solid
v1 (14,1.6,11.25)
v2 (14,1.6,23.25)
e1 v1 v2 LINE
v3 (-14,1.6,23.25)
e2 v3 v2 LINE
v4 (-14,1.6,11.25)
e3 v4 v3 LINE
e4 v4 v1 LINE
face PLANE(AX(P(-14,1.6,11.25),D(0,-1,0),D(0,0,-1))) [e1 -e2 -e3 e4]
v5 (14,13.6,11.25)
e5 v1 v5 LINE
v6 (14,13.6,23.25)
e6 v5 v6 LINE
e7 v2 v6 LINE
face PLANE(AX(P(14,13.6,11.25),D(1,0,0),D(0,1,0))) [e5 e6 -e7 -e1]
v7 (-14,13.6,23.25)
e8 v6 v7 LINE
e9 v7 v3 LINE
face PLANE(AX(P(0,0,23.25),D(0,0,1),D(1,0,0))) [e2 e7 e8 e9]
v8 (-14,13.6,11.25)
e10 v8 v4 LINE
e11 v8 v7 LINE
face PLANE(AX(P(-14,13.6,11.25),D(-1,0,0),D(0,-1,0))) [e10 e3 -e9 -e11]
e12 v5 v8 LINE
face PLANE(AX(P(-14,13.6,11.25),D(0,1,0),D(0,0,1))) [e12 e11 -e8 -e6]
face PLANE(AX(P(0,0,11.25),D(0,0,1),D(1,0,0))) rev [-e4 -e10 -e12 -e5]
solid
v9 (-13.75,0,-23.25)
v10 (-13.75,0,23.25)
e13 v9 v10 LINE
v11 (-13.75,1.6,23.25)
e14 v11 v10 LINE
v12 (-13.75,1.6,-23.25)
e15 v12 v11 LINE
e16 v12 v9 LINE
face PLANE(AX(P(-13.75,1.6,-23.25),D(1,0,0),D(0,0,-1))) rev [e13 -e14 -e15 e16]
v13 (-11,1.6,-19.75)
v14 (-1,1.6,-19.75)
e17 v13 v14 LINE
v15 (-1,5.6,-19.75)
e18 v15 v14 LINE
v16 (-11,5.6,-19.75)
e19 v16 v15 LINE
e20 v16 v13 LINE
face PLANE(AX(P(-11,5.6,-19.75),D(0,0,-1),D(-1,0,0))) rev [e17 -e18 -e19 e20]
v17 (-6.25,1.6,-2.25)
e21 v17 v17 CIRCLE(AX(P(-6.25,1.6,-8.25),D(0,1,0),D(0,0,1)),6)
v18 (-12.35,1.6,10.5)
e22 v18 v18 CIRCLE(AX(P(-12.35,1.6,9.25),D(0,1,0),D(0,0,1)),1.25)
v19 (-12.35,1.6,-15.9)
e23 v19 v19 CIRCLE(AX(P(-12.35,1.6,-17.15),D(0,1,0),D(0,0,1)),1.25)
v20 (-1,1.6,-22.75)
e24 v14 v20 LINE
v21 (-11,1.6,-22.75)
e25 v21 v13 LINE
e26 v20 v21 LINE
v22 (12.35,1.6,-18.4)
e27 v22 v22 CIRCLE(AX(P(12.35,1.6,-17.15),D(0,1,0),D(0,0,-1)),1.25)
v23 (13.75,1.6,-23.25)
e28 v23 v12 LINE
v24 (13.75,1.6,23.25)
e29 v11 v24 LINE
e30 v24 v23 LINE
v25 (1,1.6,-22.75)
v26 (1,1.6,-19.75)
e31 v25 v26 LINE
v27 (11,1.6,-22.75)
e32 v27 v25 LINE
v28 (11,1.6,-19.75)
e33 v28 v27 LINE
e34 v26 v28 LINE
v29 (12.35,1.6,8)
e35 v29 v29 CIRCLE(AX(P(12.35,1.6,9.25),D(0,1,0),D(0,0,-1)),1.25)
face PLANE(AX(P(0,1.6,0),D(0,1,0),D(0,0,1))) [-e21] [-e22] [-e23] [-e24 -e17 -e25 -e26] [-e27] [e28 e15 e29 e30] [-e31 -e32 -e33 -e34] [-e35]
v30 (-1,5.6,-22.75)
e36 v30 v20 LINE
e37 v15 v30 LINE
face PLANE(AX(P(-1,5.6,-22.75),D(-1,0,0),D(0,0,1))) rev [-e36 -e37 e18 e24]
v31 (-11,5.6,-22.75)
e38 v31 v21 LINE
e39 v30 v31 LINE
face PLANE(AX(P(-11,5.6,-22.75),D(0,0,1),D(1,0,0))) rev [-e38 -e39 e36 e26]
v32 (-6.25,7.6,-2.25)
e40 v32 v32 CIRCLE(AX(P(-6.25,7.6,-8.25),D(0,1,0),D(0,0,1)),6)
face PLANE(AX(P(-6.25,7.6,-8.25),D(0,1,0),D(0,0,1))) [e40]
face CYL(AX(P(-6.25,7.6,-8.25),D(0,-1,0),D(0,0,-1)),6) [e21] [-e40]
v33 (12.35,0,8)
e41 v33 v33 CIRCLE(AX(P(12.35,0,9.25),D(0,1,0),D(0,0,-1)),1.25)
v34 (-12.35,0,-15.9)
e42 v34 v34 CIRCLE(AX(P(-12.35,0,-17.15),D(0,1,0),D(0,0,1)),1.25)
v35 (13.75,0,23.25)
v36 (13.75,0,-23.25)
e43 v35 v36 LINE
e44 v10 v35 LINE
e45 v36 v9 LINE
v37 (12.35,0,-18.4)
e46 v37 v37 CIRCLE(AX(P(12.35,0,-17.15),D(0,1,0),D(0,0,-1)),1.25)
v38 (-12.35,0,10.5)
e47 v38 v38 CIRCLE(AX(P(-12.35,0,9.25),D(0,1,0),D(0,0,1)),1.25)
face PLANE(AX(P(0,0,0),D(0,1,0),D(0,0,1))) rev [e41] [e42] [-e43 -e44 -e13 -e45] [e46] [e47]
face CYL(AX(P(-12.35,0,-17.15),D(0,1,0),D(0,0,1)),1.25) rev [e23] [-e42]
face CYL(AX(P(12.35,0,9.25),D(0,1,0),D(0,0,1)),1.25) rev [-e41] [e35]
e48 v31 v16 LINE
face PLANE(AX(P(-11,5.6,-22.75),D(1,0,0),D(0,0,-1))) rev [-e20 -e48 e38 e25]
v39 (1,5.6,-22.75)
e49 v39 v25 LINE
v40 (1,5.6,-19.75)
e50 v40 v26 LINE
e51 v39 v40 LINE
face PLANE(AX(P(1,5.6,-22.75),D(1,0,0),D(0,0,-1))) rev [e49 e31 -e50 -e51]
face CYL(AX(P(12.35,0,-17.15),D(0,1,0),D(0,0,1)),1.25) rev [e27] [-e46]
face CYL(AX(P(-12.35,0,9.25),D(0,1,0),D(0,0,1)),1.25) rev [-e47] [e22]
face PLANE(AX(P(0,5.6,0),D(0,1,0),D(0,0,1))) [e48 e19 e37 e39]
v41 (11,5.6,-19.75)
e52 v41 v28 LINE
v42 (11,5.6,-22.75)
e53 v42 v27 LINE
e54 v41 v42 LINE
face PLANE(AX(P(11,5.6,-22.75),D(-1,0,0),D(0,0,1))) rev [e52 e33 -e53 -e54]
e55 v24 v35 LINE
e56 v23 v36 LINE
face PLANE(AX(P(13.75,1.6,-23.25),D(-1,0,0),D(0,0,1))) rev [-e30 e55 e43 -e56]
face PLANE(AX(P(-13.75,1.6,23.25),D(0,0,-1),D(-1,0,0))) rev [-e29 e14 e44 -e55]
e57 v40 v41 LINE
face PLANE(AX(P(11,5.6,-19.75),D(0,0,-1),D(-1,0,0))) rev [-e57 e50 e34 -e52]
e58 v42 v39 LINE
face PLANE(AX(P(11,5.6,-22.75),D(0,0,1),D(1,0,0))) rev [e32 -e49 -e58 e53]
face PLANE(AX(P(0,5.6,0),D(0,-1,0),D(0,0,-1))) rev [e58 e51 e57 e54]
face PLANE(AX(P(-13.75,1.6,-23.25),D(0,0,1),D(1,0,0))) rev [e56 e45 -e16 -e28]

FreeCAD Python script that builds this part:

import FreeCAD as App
import Part
import Sketcher


def add_polygon(sketch, points):
    """Adds a closed chain of lines whose ends are joined by coincident constraints."""
    first, n = sketch.GeometryCount, len(points)
    for a, b in zip(points, points[1:] + points[:1]):
        sketch.addGeometry(Part.LineSegment(App.Vector(*a, 0), App.Vector(*b, 0)), False)
    for i in range(n):
        sketch.addConstraint(Sketcher.Constraint("Coincident", first + i, 2, first + (i + 1) % n, 1))

doc = App.newDocument("Part")
params = doc.addObject("Spreadsheet::Sheet", "Params")
for row, (alias, value) in enumerate([
    ("sketch1_width", "27.5 mm"),
    ("sketch1_height", "46.5 mm"),
    ("pad1_length", "1.6 mm"),
    ("sketch2_diameter", "2.5 mm"),
    ("sketch3_diameter", "12 mm"),
    ("pad2_length", "6 mm"),
    ("sketch4_width", "10 mm"),
    ("sketch4_height", "3 mm"),
    ("pad3_length", "4 mm"),
    ("sketch5_width", "28 mm"),
    ("sketch5_height", "12 mm"),
    ("pad4_length", "12 mm"),
], start=1):
    params.set(f"A{row}", alias)
    params.set(f"B{row}", "=" + value)
    params.setAlias(f"B{row}", alias)

body = doc.addObject("PartDesign::Body", "Body")

# Sketch on XZ plane
sketch1 = body.newObject("Sketcher::SketchObject", "Sketch")
sketch1.AttachmentSupport = (doc.getObject("XZ_Plane"), [""])
sketch1.MapMode = "FlatFace"
add_polygon(sketch1, [(-14, -23), (-14, 23), (14, 23), (14, -23)])  # lines 0-3
sketch1.addConstraint([
    Sketcher.Constraint("Vertical", 0),
    Sketcher.Constraint("Horizontal", 1),
    Sketcher.Constraint("Vertical", 2),
    Sketcher.Constraint("Horizontal", 3),
    Sketcher.Constraint("Symmetric", 0, 2, 2, 2, -1, 1),
    Sketcher.Constraint("DistanceX", 1, 1, 1, 2, 27.5),
    Sketcher.Constraint("DistanceY", 0, 1, 0, 2, 46.5),
])
sketch1.setExpression("Constraints[9]", "Params.sketch1_width")
sketch1.setExpression("Constraints[10]", "Params.sketch1_height")
pad1 = body.newObject("PartDesign::Pad", "Pad")
pad1.Profile = sketch1
pad1.setExpression("Length", "Params.pad1_length")
pad1.Reversed = True

# Sketch on XZ plane
sketch2 = body.newObject("Sketcher::SketchObject", "Sketch001")
sketch2.AttachmentSupport = (doc.getObject("XZ_Plane"), [""])
sketch2.MapMode = "FlatFace"
sketch2.AttachmentOffset = App.Placement(App.Vector(0, 0, -1.6), App.Rotation())
sketch2.addGeometry([
    Part.Circle(App.Vector(-12.3, -17.1, 0), App.Vector(0, 0, 1), 1.2),
    Part.Circle(App.Vector(-12.3, 9.2, 0), App.Vector(0, 0, 1), 1.2),
    Part.Circle(App.Vector(12.3, 9.2, 0), App.Vector(0, 0, 1), 1.2),
    Part.Circle(App.Vector(12.3, -17.1, 0), App.Vector(0, 0, 1), 1.2),
], False)
sketch2.addConstraint([
    Sketcher.Constraint("Equal", 0, 1),
    Sketcher.Constraint("Equal", 1, 2),
    Sketcher.Constraint("Equal", 2, 3),
    Sketcher.Constraint("Symmetric", 1, 3, 2, 3, -2),
    Sketcher.Constraint("Symmetric", 0, 3, 3, 3, -2),
    Sketcher.Constraint("Vertical", 0, 3, 1, 3),
    Sketcher.Constraint("Diameter", 0, 2.5),
    Sketcher.Constraint("DistanceY", 0, 3, 1, 3, 26.4),
    Sketcher.Constraint("DistanceX", 1, 3, 2, 3, 24.7),
    Sketcher.Constraint("DistanceY", 0, 3, -1, 1, 17.15),
])
sketch2.setExpression("Constraints[6]", "Params.sketch2_diameter")
pocket1 = body.newObject("PartDesign::Pocket", "Pocket")
pocket1.Profile = sketch2
pocket1.Type = "ThroughAll"
pocket1.Reversed = True

# Sketch on XZ plane
sketch3 = body.newObject("Sketcher::SketchObject", "Sketch002")
sketch3.AttachmentSupport = (doc.getObject("XZ_Plane"), [""])
sketch3.MapMode = "FlatFace"
sketch3.AttachmentOffset = App.Placement(App.Vector(0, 0, -1.6), App.Rotation())
sketch3.addGeometry(Part.Circle(App.Vector(-6, -8, 0), App.Vector(0, 0, 1), 6), False)
sketch3.addConstraint([
    Sketcher.Constraint("Diameter", 0, 12.0),
    Sketcher.Constraint("DistanceX", 0, 3, -1, 1, 6.25),
    Sketcher.Constraint("DistanceY", 0, 3, -1, 1, 8.25),
])
sketch3.setExpression("Constraints[0]", "Params.sketch3_diameter")
pad2 = body.newObject("PartDesign::Pad", "Pad001")
pad2.Profile = sketch3
pad2.setExpression("Length", "Params.pad2_length")
pad2.Reversed = True

# Sketch on XZ plane
sketch4 = body.newObject("Sketcher::SketchObject", "Sketch003")
sketch4.AttachmentSupport = (doc.getObject("XZ_Plane"), [""])
sketch4.MapMode = "FlatFace"
sketch4.AttachmentOffset = App.Placement(App.Vector(0, 0, -1.6), App.Rotation())
add_polygon(sketch4, [(-11, -22.8), (-11, -19.8), (-1, -19.8), (-1, -22.8)])  # lines 0-3
add_polygon(sketch4, [(1, -22.8), (1, -19.8), (11, -19.8), (11, -22.8)])  # lines 4-7
sketch4.addConstraint([
    Sketcher.Constraint("Vertical", 0),
    Sketcher.Constraint("Horizontal", 1),
    Sketcher.Constraint("Vertical", 2),
    Sketcher.Constraint("Horizontal", 3),
    Sketcher.Constraint("Vertical", 4),
    Sketcher.Constraint("Horizontal", 5),
    Sketcher.Constraint("Vertical", 6),
    Sketcher.Constraint("Horizontal", 7),
    Sketcher.Constraint("Symmetric", 1, 2, 4, 2, -2),
    Sketcher.Constraint("Symmetric", 3, 2, 6, 2, -2),
    Sketcher.Constraint("DistanceX", 1, 1, 1, 2, 10.0),
    Sketcher.Constraint("DistanceY", 0, 1, 0, 2, 3.0),
    Sketcher.Constraint("DistanceX", 0, 2, -1, 1, 11.0),
    Sketcher.Constraint("DistanceY", 0, 2, -1, 1, 19.75),
])
sketch4.setExpression("Constraints[18]", "Params.sketch4_width")
sketch4.setExpression("Constraints[19]", "Params.sketch4_height")
pad3 = body.newObject("PartDesign::Pad", "Pad002")
pad3.Profile = sketch4
pad3.setExpression("Length", "Params.pad3_length")
pad3.Reversed = True
body2 = doc.addObject("PartDesign::Body", "Body001")

# Sketch on XY plane
sketch5 = body2.newObject("Sketcher::SketchObject", "Sketch004")
sketch5.AttachmentSupport = (doc.getObject("XY_Plane001"), [""])
sketch5.MapMode = "FlatFace"
sketch5.AttachmentOffset = App.Placement(App.Vector(0, 0, 23.25), App.Rotation())
add_polygon(sketch5, [(-14, 14), (-14, 2), (14, 2), (14, 14)])  # lines 0-3
sketch5.addConstraint([
    Sketcher.Constraint("Vertical", 0),
    Sketcher.Constraint("Horizontal", 1),
    Sketcher.Constraint("Vertical", 2),
    Sketcher.Constraint("Horizontal", 3),
    Sketcher.Constraint("DistanceX", 1, 1, 1, 2, 28.0),
    Sketcher.Constraint("DistanceY", 0, 2, 0, 1, 12.0),
    Sketcher.Constraint("DistanceX", 0, 2, -1, 1, 14.0),
    Sketcher.Constraint("DistanceY", -1, 1, 0, 2, 1.6),
])
sketch5.setExpression("Constraints[8]", "Params.sketch5_width")
sketch5.setExpression("Constraints[9]", "Params.sketch5_height")
pad4 = body2.newObject("PartDesign::Pad", "Pad003")
pad4.Profile = sketch5
pad4.setExpression("Length", "Params.pad4_length")
pad4.Reversed = True

doc.recompute()
